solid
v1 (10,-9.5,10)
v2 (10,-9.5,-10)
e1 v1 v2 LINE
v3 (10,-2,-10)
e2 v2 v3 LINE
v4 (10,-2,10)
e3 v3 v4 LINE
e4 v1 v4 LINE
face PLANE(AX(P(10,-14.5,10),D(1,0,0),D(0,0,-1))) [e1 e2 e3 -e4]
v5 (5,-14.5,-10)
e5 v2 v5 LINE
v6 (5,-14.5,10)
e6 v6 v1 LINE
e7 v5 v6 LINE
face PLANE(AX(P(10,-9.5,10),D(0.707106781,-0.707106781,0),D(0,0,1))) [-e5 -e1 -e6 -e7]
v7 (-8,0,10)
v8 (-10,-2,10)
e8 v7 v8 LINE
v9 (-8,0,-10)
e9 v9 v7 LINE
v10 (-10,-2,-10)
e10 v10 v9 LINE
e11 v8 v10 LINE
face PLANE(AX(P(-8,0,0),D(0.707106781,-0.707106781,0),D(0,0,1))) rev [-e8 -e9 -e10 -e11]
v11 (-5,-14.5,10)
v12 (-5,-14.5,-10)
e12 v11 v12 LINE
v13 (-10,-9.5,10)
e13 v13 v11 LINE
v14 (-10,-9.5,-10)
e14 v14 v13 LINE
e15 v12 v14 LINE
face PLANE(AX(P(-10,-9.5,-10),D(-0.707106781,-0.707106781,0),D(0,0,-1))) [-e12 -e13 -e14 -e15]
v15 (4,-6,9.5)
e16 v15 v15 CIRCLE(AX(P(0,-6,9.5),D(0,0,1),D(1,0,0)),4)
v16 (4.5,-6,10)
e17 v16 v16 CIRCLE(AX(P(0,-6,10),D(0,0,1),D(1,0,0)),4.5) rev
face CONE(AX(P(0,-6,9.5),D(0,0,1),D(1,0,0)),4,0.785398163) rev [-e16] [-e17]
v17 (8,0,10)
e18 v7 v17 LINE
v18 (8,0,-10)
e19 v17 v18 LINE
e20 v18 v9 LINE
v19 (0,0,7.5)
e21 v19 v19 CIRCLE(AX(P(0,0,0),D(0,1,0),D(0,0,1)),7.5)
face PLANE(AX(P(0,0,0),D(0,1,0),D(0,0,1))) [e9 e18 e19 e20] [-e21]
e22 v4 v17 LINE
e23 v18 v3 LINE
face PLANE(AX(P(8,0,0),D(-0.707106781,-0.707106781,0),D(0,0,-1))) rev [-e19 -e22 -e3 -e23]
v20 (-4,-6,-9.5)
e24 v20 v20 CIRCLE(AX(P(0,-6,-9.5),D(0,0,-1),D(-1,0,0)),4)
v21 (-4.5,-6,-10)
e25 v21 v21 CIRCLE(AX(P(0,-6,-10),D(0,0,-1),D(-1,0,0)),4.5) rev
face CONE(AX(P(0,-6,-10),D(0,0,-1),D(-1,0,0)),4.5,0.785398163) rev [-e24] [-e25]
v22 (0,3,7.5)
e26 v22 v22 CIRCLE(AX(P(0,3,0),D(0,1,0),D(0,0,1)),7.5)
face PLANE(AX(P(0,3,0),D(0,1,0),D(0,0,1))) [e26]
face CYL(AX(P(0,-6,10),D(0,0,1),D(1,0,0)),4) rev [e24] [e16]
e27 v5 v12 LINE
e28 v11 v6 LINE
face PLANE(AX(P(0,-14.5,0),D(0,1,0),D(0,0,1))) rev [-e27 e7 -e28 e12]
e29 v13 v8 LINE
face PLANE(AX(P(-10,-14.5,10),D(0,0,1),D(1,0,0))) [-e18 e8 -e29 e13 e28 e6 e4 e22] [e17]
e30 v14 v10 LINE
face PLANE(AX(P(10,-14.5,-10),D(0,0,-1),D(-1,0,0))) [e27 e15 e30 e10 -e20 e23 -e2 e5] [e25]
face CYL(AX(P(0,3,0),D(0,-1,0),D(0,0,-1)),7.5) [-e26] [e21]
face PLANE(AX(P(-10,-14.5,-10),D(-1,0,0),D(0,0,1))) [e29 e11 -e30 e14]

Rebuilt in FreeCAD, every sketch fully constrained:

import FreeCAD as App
import Part
import Sketcher

V = App.Vector
Q = App.Units.Quantity


def edges_at(feature, points):
    """Names of the edges that pass closest to the given points."""
    edges = feature.Shape.Edges
    near = lambda p: min(range(len(edges)), key=lambda i: edges[i].distToShape(Part.Vertex(*p))[0])
    return sorted({f"Edge{near(p) + 1}" for p in points})

doc = App.newDocument("Part")
body = doc.addObject("PartDesign::Body", "Body")

sketch1 = body.newObject("Sketcher::SketchObject", "Sketch")
sketch1.AttachmentSupport = (doc.getObject("XZ_Plane"), [""])
sketch1.MapMode = "FlatFace"
sketch1.addGeometry(Part.LineSegment(V(-10, -10, 0), V(-10, 10, 0)), False)
sketch1.addGeometry(Part.LineSegment(V(-10, 10, 0), V(10, 10, 0)), False)
sketch1.addGeometry(Part.LineSegment(V(10, 10, 0), V(10, -10, 0)), False)
sketch1.addGeometry(Part.LineSegment(V(10, -10, 0), V(-10, -10, 0)), False)
sketch1.addConstraint(Sketcher.Constraint("Coincident", 0, 2, 1, 1))
sketch1.addConstraint(Sketcher.Constraint("Coincident", 1, 2, 2, 1))
sketch1.addConstraint(Sketcher.Constraint("Coincident", 2, 2, 3, 1))
sketch1.addConstraint(Sketcher.Constraint("Coincident", 3, 2, 0, 1))
sketch1.addConstraint(Sketcher.Constraint("Vertical", 0))
sketch1.addConstraint(Sketcher.Constraint("Horizontal", 1))
sketch1.addConstraint(Sketcher.Constraint("Vertical", 2))
sketch1.addConstraint(Sketcher.Constraint("Horizontal", 3))
sketch1.addConstraint(Sketcher.Constraint("Symmetric", 0, 2, 2, 2, -1, 1))
sketch1.addConstraint(Sketcher.Constraint("Equal", 3, 0))
sketch1.addConstraint(Sketcher.Constraint("DistanceX", 1, 1, 1, 2, Q("20 mm")))
pad1 = body.newObject("PartDesign::Pad", "Pad")
pad1.Profile = sketch1
pad1.Length = 14.5

sketch2 = body.newObject("Sketcher::SketchObject", "Sketch001")
sketch2.AttachmentSupport = (doc.getObject("XZ_Plane"), [""])
sketch2.MapMode = "FlatFace"
sketch2.addGeometry(Part.Circle(V(0, 0, 0), V(0, 0, 1), 8), False)
sketch2.addConstraint(Sketcher.Constraint("Coincident", 0, 3, -1, 1))
sketch2.addConstraint(Sketcher.Constraint("Diameter", 0, Q("15 mm")))
pad2 = body.newObject("PartDesign::Pad", "Pad001")
pad2.Profile = sketch2
pad2.Length = 3
pad2.Reversed = True

sketch3 = body.newObject("Sketcher::SketchObject", "Sketch002")
sketch3.AttachmentSupport = (doc.getObject("XY_Plane"), [""])
sketch3.MapMode = "FlatFace"
sketch3.AttachmentOffset = App.Placement(V(0, 0, 10), App.Rotation())
sketch3.addGeometry(Part.Circle(V(0, -6, 0), V(0, 0, 1), 4), False)
sketch3.addConstraint(Sketcher.Constraint("PointOnObject", 0, 3, -2))
sketch3.addConstraint(Sketcher.Constraint("Diameter", 0, Q("8 mm")))
sketch3.addConstraint(Sketcher.Constraint("DistanceY", 0, 3, -1, 1, Q("6 mm")))
doc.recompute()
hole = body.newObject("PartDesign::Hole", "Hole")
hole.Profile = sketch3
hole.ThreadType = "None"
hole.Diameter = 8
hole.DepthType = "ThroughAll"
doc.recompute()

chamfer = body.newObject("PartDesign::Chamfer", "Chamfer")
chamfer.Base = (hole, edges_at(hole, [(-10, -14.5, 0), (10, -14.5, 0)]))
chamfer.Size = 5
doc.recompute()

chamfer2 = body.newObject("PartDesign::Chamfer", "Chamfer001")
chamfer2.Base = (chamfer, edges_at(chamfer, [(-10, 0, 0), (10, 0, 0)]))
chamfer2.Size = 2
doc.recompute()

chamfer3 = body.newObject("PartDesign::Chamfer", "Chamfer002")
chamfer3.Base = (chamfer2, edges_at(chamfer2, [(4, -6, 10), (4, -6, -10)]))
chamfer3.Size = 0.5

doc.recompute()
